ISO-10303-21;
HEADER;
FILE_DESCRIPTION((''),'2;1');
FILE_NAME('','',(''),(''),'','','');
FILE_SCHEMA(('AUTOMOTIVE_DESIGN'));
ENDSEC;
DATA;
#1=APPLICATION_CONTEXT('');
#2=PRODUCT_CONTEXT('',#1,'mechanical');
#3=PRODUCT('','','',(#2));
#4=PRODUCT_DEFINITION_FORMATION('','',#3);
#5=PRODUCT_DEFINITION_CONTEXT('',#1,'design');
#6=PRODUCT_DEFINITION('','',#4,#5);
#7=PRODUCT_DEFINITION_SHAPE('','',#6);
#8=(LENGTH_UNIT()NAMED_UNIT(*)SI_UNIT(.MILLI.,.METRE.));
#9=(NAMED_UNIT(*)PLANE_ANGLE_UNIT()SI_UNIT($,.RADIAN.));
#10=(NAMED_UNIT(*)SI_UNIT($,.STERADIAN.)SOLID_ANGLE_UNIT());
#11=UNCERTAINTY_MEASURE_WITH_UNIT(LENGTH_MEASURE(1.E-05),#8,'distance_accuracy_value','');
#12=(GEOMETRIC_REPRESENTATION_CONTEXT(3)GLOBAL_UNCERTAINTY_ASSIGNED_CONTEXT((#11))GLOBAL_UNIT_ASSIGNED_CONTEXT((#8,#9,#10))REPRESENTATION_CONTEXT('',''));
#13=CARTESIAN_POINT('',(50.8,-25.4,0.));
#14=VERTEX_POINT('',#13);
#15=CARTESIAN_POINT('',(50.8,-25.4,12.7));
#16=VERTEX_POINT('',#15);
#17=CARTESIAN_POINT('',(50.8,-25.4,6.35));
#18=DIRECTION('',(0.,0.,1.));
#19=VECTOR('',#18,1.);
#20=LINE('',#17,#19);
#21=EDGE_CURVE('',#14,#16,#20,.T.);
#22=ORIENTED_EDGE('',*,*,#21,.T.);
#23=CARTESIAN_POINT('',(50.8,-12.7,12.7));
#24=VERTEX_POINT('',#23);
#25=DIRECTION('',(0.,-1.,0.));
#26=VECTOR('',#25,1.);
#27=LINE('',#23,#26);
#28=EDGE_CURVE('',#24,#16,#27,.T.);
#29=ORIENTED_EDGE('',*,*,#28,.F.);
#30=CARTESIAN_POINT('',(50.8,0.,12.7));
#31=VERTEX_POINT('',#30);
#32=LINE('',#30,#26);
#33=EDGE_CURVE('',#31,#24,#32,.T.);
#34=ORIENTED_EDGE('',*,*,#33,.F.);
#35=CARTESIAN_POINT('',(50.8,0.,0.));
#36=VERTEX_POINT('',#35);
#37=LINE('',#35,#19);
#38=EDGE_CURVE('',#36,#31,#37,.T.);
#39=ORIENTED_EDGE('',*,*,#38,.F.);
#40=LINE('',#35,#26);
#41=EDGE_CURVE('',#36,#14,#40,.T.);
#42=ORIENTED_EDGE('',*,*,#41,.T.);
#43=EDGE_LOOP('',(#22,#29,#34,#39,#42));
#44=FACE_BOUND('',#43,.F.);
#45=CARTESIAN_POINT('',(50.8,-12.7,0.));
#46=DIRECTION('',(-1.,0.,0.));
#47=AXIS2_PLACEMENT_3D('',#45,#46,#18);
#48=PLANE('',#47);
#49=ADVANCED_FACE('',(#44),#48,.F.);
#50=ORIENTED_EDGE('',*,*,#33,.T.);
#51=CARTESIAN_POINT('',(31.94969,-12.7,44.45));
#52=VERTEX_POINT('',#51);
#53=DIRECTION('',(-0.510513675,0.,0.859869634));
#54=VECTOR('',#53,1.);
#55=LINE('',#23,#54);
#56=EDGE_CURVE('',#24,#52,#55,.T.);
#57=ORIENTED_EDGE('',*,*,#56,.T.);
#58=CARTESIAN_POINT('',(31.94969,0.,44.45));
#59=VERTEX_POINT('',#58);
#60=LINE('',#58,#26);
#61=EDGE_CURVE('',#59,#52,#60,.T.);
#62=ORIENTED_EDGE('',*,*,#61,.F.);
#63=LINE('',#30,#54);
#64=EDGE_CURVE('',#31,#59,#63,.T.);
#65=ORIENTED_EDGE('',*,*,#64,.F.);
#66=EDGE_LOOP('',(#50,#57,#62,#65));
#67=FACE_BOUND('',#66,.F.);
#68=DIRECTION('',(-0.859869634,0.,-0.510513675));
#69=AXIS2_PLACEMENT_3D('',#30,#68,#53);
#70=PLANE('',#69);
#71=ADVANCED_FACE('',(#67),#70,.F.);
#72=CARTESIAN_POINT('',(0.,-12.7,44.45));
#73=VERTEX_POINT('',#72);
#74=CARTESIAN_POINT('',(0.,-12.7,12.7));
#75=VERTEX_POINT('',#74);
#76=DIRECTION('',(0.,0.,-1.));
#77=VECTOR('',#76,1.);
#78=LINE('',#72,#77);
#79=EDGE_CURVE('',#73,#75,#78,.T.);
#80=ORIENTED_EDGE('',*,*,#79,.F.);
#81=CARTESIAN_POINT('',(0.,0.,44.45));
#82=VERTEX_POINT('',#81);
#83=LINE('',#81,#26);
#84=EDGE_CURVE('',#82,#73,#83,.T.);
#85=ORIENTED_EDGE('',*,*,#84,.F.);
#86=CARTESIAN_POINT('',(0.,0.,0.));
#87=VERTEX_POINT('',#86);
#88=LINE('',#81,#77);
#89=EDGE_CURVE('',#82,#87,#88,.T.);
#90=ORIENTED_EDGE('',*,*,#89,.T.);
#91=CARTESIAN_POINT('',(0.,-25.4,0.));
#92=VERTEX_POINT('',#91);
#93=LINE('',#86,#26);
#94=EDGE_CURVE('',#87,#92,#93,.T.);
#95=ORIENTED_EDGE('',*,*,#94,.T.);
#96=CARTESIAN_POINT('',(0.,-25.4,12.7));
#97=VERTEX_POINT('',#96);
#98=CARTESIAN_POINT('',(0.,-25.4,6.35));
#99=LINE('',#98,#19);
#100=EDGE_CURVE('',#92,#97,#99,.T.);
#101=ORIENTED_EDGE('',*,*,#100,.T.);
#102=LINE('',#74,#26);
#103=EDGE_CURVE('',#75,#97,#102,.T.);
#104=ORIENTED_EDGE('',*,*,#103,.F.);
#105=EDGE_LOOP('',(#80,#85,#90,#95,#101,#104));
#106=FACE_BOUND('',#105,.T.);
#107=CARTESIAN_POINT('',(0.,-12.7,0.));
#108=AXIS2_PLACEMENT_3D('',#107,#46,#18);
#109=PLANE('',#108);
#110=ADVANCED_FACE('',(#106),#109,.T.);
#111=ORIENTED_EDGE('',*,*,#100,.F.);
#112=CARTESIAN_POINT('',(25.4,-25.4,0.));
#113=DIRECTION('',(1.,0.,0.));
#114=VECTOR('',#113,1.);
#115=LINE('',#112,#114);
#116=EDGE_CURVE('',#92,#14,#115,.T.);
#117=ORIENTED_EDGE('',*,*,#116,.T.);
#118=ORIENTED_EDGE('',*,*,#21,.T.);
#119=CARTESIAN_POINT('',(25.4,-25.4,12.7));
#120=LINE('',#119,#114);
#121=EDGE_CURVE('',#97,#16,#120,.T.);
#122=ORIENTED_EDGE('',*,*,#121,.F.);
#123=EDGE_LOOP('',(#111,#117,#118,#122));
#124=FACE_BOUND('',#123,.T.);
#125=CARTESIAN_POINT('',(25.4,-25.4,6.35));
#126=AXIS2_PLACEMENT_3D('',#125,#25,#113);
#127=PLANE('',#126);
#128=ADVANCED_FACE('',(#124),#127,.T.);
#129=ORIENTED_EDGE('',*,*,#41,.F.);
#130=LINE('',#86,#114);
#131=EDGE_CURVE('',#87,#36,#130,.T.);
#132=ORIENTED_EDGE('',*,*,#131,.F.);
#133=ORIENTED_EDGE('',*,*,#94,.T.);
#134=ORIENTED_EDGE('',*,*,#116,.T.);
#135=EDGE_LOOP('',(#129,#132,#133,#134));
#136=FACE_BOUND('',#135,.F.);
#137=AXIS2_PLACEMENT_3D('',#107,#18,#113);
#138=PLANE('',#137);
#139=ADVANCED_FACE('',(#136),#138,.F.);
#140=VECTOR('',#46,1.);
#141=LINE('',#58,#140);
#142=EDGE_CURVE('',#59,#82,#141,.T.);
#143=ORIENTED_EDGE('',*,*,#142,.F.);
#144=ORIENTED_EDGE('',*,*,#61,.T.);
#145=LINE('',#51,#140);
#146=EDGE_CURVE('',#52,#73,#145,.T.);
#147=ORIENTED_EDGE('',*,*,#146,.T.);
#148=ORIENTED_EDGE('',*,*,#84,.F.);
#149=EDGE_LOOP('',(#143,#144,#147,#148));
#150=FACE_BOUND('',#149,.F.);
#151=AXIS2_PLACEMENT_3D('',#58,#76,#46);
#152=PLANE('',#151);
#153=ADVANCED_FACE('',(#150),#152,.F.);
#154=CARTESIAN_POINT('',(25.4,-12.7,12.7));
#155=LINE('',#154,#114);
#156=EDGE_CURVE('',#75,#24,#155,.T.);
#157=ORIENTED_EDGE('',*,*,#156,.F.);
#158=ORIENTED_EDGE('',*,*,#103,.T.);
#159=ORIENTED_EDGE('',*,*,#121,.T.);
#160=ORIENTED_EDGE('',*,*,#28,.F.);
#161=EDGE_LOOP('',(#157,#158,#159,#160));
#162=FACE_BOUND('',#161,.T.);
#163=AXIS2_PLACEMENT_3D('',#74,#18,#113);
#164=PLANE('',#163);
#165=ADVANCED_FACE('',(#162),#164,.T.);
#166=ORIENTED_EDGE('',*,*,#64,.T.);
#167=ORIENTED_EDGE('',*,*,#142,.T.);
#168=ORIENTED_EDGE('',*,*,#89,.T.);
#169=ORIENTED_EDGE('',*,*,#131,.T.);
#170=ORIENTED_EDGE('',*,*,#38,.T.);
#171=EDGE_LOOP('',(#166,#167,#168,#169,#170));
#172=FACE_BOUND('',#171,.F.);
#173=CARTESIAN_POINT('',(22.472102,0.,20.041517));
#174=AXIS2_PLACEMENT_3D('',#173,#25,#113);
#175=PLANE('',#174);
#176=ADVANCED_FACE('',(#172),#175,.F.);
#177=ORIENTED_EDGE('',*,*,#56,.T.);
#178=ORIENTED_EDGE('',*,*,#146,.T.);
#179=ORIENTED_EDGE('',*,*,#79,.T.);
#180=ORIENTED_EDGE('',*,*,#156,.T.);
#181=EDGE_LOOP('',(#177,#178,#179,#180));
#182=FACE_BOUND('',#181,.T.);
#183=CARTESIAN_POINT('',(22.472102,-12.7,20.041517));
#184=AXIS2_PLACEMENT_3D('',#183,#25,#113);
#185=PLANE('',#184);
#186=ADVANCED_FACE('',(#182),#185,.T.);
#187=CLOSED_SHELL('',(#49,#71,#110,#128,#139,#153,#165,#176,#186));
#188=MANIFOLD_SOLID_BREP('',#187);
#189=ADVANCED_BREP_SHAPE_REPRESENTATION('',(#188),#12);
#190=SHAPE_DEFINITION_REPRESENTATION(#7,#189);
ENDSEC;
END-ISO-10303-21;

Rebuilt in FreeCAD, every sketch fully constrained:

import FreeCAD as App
import Part
import Sketcher
Q = App.Units.Quantity


def add_polygon(sketch, points):
    """Adds a closed chain of lines whose ends are joined by coincident constraints."""
    first, n = sketch.GeometryCount, len(points)
    for a, b in zip(points, points[1:] + points[:1]):
        sketch.addGeometry(Part.LineSegment(App.Vector(*a, 0), App.Vector(*b, 0)), False)
    for i in range(n):
        sketch.addConstraint(Sketcher.Constraint("Coincident", first + i, 2, first + (i + 1) % n, 1))

doc = App.newDocument("Part")
body = doc.addObject("PartDesign::Body", "Body")

# Sketch on XZ plane
sketch1 = doc.addObject("Sketcher::SketchObject", "Sketch")
body.addObject(sketch1)
sketch1.AttachmentSupport = (doc.XZ_Plane, [""])
sketch1.MapMode = "FlatFace"
add_polygon(sketch1, [(0, 44), (0, 0), (51, 0), (51, 13), (32, 44)])  # lines 0-4
sketch1.addConstraint(Sketcher.Constraint("Vertical", 0))
sketch1.addConstraint(Sketcher.Constraint("Horizontal", 1))
sketch1.addConstraint(Sketcher.Constraint("Vertical", 2))
sketch1.addConstraint(Sketcher.Constraint("Horizontal", 4))
sketch1.addConstraint(Sketcher.Constraint("Coincident", 0, 2, -1, 1))
sketch1.addConstraint(Sketcher.Constraint("DistanceX", 1, 1, 1, 2, Q("2 in")))
sketch1.addConstraint(Sketcher.Constraint("DistanceY", 2, 1, 2, 2, Q("0.5 in")))
sketch1.addConstraint(Sketcher.Constraint("DistanceY", 0, 2, 0, 1, Q("1.75 in")))
sketch1.addConstraint(Sketcher.Constraint("Distance", 3, Q("36.924202 mm")))
pad1 = doc.addObject("PartDesign::Pad", "Pad")
body.addObject(pad1)
pad1.Profile = sketch1
pad1.Length = Q("0.5 in")

# Sketch on XZ plane
sketch2 = doc.addObject("Sketcher::SketchObject", "Sketch001")
body.addObject(sketch2)
sketch2.AttachmentSupport = (doc.XZ_Plane, [""])
sketch2.MapMode = "FlatFace"
sketch2.AttachmentOffset = App.Placement(App.Vector(0, 0, 0.5 * 25.4), App.Rotation())
add_polygon(sketch2, [(0, 13), (0, 0), (51, 0), (51, 13)])  # lines 0-3
sketch2.addConstraint(Sketcher.Constraint("Vertical", 0))
sketch2.addConstraint(Sketcher.Constraint("Horizontal", 1))
sketch2.addConstraint(Sketcher.Constraint("Vertical", 2))
sketch2.addConstraint(Sketcher.Constraint("Horizontal", 3))
sketch2.addConstraint(Sketcher.Constraint("Coincident", 0, 2, -1, 1))
sketch2.addConstraint(Sketcher.Constraint("DistanceX", 1, 1, 1, 2, Q("2 in")))
sketch2.addConstraint(Sketcher.Constraint("DistanceY", 0, 2, 0, 1, Q("0.5 in")))
pad2 = doc.addObject("PartDesign::Pad", "Pad001")
body.addObject(pad2)
pad2.Profile = sketch2
pad2.Length = Q("0.5 in")

doc.recompute()
